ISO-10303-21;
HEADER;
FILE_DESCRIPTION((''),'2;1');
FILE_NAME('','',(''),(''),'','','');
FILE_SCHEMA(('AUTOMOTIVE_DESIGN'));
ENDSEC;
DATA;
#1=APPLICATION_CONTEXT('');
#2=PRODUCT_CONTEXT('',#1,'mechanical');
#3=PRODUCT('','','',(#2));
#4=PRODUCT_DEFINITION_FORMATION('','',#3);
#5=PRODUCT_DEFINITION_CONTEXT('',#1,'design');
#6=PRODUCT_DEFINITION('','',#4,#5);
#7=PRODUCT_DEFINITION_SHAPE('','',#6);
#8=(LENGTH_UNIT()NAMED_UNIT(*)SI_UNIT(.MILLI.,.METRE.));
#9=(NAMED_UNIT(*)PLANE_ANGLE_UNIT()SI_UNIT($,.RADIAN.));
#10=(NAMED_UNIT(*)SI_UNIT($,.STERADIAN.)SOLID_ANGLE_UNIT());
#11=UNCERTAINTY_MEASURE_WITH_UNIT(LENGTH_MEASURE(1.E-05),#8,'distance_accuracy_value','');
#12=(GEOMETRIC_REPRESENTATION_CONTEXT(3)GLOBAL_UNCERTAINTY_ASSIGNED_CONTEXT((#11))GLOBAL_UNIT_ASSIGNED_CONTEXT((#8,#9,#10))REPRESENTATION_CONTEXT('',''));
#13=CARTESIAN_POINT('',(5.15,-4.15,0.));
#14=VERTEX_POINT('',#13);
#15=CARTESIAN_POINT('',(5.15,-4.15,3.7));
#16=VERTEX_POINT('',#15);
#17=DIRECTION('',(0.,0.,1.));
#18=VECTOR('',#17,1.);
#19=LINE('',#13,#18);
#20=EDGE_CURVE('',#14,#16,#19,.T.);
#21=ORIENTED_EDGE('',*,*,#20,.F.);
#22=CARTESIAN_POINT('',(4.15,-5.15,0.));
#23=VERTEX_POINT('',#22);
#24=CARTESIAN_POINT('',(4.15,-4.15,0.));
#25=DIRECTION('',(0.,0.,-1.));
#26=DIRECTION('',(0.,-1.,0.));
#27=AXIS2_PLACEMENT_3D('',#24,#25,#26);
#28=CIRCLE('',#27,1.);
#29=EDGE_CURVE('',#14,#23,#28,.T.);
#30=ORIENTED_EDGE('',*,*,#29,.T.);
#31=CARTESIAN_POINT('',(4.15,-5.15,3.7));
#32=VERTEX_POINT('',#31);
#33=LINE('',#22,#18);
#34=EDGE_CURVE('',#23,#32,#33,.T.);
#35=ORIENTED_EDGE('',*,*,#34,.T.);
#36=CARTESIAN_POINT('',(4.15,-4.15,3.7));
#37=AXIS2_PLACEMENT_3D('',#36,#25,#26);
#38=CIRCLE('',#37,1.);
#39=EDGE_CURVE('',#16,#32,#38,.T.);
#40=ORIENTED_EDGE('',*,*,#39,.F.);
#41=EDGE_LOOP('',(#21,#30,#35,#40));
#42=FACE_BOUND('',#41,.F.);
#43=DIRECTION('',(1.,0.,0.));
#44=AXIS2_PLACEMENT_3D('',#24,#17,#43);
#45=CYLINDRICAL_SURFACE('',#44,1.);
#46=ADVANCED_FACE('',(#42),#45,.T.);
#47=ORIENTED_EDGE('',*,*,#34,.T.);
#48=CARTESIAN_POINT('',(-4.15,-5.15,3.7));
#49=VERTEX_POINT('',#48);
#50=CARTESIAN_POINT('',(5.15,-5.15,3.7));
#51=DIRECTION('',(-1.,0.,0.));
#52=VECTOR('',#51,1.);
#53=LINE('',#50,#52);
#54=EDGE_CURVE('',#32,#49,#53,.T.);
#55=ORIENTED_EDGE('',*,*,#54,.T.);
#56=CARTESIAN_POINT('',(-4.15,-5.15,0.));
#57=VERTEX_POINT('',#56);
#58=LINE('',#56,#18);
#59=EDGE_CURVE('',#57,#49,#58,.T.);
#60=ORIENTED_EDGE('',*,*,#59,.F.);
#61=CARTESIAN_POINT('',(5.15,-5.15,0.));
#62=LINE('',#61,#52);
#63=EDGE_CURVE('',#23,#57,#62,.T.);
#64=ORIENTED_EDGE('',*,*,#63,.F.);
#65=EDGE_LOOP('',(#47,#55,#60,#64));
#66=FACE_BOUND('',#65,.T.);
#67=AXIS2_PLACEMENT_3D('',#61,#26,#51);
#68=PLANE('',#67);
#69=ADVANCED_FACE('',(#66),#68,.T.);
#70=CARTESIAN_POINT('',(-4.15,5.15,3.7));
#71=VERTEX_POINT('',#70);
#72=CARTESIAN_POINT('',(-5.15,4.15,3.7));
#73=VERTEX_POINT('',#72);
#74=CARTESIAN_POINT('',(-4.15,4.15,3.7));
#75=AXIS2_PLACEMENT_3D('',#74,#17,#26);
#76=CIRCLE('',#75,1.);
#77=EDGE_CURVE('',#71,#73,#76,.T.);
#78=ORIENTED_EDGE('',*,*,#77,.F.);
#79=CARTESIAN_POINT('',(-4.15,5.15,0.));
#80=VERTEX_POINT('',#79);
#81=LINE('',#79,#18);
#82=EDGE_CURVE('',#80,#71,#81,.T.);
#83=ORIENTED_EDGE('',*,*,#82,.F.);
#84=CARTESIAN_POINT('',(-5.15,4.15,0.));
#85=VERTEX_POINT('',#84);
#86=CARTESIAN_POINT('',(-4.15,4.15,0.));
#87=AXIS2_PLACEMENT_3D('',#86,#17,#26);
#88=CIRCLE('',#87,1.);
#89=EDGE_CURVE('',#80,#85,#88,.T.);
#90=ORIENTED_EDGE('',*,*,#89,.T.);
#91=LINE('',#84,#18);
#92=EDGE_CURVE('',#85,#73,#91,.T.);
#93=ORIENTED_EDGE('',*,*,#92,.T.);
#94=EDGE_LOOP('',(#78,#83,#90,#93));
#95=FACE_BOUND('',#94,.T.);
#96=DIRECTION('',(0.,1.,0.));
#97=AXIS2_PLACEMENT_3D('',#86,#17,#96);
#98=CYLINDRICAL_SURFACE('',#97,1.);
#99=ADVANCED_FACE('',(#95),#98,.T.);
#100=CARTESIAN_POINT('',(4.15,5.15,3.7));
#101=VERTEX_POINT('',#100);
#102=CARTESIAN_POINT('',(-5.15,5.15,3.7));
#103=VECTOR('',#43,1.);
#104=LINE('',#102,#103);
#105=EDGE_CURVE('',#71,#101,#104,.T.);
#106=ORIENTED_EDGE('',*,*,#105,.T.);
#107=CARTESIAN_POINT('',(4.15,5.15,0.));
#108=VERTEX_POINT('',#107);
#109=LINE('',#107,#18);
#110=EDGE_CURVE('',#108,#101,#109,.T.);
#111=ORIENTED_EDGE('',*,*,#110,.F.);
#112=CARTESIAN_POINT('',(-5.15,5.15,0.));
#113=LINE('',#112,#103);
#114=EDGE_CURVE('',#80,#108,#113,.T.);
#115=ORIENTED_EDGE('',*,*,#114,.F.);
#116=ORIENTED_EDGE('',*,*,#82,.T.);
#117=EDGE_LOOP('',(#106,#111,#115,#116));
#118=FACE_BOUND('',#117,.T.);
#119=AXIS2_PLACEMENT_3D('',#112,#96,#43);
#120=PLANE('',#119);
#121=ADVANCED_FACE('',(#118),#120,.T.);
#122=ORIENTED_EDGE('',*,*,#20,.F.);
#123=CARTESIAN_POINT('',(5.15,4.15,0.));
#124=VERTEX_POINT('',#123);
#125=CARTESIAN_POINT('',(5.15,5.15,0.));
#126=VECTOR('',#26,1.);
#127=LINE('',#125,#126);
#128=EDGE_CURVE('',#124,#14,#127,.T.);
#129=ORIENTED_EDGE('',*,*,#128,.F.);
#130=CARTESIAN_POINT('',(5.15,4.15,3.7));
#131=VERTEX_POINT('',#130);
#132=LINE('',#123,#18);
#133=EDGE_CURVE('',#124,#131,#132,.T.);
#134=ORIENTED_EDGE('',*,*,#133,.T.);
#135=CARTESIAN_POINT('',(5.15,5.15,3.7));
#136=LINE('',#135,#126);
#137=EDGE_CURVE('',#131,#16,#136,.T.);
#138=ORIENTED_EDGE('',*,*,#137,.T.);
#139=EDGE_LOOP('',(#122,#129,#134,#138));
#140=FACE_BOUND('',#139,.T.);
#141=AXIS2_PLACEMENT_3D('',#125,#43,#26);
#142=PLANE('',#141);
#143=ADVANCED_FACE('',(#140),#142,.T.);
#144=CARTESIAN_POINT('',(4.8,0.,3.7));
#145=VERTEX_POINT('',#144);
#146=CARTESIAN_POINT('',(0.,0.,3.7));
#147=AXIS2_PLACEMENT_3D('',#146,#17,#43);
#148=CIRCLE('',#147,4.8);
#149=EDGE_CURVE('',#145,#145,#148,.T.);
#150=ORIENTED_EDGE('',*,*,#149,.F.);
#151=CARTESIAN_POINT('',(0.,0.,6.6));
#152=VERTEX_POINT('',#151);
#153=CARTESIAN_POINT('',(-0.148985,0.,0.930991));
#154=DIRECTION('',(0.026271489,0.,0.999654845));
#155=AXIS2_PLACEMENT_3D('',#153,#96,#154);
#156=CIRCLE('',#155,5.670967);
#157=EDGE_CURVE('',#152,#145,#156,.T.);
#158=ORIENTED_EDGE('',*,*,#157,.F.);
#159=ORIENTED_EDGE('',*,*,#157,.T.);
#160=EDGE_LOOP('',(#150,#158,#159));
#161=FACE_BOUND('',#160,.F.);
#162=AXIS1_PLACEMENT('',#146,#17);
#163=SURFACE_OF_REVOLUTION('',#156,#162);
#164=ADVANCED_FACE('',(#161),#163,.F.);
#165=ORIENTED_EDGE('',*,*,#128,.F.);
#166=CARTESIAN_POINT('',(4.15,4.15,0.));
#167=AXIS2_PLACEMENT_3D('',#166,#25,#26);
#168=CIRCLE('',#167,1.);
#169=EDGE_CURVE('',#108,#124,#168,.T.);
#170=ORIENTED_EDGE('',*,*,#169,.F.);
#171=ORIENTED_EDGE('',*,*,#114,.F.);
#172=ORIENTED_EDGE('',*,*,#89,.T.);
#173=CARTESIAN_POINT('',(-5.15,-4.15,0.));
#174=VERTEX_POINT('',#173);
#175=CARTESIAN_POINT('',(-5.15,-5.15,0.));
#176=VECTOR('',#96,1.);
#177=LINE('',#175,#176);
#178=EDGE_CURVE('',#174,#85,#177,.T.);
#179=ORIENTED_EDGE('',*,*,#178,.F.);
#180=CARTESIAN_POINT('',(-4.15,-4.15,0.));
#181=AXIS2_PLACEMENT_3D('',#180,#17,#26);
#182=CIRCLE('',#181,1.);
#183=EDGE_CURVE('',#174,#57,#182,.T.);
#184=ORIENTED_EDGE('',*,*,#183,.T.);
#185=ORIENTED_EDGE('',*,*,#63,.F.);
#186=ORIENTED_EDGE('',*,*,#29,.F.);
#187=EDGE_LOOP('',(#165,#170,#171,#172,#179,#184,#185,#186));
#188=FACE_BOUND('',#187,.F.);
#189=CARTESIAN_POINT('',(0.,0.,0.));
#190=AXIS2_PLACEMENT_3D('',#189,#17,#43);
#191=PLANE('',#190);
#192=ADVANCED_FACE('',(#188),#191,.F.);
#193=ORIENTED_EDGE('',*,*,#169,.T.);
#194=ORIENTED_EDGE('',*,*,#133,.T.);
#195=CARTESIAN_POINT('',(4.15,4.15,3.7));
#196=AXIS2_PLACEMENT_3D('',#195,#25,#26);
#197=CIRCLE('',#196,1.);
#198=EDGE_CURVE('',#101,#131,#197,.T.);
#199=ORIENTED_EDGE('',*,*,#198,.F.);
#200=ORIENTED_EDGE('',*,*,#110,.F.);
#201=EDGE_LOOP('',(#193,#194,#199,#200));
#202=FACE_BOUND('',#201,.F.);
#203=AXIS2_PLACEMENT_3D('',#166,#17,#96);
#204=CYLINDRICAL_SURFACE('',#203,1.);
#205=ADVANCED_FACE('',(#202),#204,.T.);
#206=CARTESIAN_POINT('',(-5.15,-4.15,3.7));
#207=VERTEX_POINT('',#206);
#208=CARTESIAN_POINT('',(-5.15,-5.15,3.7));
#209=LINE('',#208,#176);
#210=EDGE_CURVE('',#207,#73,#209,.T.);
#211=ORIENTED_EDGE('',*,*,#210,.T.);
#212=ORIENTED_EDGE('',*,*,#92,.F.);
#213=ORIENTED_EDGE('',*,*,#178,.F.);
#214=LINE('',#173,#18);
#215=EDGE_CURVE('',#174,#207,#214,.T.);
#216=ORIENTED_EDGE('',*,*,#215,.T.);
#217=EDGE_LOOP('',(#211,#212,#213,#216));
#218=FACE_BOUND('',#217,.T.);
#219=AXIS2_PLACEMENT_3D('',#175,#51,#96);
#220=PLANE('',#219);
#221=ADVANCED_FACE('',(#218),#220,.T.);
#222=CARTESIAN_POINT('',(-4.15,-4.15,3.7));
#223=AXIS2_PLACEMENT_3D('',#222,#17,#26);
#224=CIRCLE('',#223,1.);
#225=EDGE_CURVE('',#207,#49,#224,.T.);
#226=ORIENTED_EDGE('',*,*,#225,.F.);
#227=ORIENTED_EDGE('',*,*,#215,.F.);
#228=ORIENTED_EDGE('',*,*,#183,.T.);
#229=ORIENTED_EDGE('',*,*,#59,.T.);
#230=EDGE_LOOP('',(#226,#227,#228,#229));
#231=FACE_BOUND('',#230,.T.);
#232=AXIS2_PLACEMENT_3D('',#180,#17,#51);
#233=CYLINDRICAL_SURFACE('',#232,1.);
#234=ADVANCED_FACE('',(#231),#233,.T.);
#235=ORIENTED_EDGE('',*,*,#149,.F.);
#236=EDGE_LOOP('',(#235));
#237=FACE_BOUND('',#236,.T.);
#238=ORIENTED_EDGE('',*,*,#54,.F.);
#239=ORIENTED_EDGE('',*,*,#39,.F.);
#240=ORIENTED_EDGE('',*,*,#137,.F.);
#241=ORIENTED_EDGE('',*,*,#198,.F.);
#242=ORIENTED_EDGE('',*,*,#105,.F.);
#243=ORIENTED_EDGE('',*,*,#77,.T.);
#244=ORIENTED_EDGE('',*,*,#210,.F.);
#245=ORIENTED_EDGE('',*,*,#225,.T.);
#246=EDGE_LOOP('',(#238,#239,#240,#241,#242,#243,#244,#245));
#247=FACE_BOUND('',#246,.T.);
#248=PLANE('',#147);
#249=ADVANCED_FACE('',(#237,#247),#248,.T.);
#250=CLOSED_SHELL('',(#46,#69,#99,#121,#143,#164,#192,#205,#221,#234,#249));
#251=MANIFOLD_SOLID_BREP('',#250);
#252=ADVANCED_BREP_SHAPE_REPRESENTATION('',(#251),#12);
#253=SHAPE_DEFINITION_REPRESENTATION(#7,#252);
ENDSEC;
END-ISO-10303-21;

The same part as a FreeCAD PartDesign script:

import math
import FreeCAD as App
import Part
import Sketcher


def edges_at(feature, points):
    """Names of the edges that pass closest to the given points."""
    edges = feature.Shape.Edges
    near = lambda p: min(range(len(edges)), key=lambda i: edges[i].distToShape(Part.Vertex(*p))[0])
    return sorted({f"Edge{near(p) + 1}" for p in points})


def add_polygon(sketch, points):
    """Adds a closed chain of lines whose ends are joined by coincident constraints."""
    first, n = sketch.GeometryCount, len(points)
    for a, b in zip(points, points[1:] + points[:1]):
        sketch.addGeometry(Part.LineSegment(App.Vector(*a, 0), App.Vector(*b, 0)), False)
    for i in range(n):
        sketch.addConstraint(Sketcher.Constraint("Coincident", first + i, 2, first + (i + 1) % n, 1))

doc = App.newDocument("Part")
body = doc.addObject("PartDesign::Body", "Body")

# Sketch on XY plane
sketch1 = doc.addObject("Sketcher::SketchObject", "Sketch")
body.addObject(sketch1)
sketch1.AttachmentSupport = (doc.XY_Plane, [""])
sketch1.MapMode = "FlatFace"
add_polygon(sketch1, [(5, 5), (-5, 5), (-5, -5), (5, -5)])  # lines 0-3
sketch1.addConstraint([
    Sketcher.Constraint("Horizontal", 0),
    Sketcher.Constraint("Vertical", 1),
    Sketcher.Constraint("Horizontal", 2),
    Sketcher.Constraint("Vertical", 3),
    Sketcher.Constraint("Symmetric", 0, 2, 2, 2, -1, 1),
    Sketcher.Constraint("Equal", 2, 1),
    Sketcher.Constraint("DistanceX", 0, 2, 0, 1, 10.3),
])
pad1 = doc.addObject("PartDesign::Pad", "Pad")
body.addObject(pad1)
pad1.Profile = sketch1
pad1.Length = 3.7

# Sketch on XZ plane
sketch2 = doc.addObject("Sketcher::SketchObject", "Sketch001")
body.addObject(sketch2)
sketch2.AttachmentSupport = (doc.XZ_Plane, [""])
sketch2.MapMode = "FlatFace"
sketch2.addGeometry([
    Part.LineSegment(App.Vector(4.8, 3.7, 0), App.Vector(0, 3.7, 0)),
    Part.LineSegment(App.Vector(0, 3.7, 0), App.Vector(0, 6.6, 0)),
    Part.ArcOfCircle(Part.Circle(App.Vector(-0.1, 0.9, 0), App.Vector(0, 0, 1), 5.7), math.radians(29), math.radians(88)),
], False)
sketch2.addConstraint([
    Sketcher.Constraint("Coincident", 0, 2, 1, 1),
    Sketcher.Constraint("Coincident", 1, 2, 2, 2),
    Sketcher.Constraint("Coincident", 2, 1, 0, 1),
    Sketcher.Constraint("Horizontal", 0),
    Sketcher.Constraint("Vertical", 1),
    Sketcher.Constraint("PointOnObject", 0, 2, -2),
    Sketcher.Constraint("DistanceX", 0, 2, 0, 1, 4.8),
    Sketcher.Constraint("DistanceY", -1, 1, 1, 2, 6.6),
    Sketcher.Constraint("DistanceY", 1, 1, 1, 2, 2.9),
    Sketcher.Constraint("Radius", 2, 5.671),
])
revolution = doc.addObject("PartDesign::Revolution", "Revolution")
body.addObject(revolution)
revolution.Profile = sketch2
revolution.ReferenceAxis = (sketch2, ["V_Axis"])
revolution.Angle = 360
doc.recompute()

fillet = doc.addObject("PartDesign::Fillet", "Fillet")
body.addObject(fillet)
fillet.Base = (revolution, edges_at(revolution, [
    (5.15, -5.15, 1.85),
    (5.15, 5.15, 1.85),
    (-5.15, 5.15, 1.85),
    (-5.15, -5.15, 1.85),
]))
fillet.Radius = 1

doc.recompute()
